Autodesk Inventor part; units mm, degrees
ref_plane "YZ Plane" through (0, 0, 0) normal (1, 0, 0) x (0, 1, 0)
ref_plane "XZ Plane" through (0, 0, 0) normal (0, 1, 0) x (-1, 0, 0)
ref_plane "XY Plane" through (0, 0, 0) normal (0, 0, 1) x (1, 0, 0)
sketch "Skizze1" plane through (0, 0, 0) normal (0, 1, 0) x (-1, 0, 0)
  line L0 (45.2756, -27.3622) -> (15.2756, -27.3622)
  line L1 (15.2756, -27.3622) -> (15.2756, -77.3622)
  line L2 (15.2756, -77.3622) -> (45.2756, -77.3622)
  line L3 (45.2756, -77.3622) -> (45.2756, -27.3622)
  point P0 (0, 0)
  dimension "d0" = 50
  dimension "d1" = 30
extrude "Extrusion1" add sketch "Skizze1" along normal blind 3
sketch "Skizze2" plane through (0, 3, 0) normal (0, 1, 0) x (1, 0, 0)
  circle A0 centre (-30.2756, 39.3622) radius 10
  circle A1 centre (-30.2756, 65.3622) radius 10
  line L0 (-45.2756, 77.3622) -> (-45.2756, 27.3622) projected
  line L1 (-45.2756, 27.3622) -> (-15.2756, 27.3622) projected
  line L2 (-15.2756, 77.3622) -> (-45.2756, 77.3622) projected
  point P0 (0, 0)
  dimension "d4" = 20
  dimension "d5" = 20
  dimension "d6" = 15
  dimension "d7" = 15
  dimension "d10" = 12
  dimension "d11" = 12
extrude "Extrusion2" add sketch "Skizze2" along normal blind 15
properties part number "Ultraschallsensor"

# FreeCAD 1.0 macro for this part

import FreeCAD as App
import Part
import Sketcher
from FreeCAD import Vector


def add_polygon(sketch, points):
    """Adds a closed chain of lines whose ends are joined by coincident constraints."""
    first, n = sketch.GeometryCount, len(points)
    for a, b in zip(points, points[1:] + points[:1]):
        sketch.addGeometry(Part.LineSegment(App.Vector(*a, 0), App.Vector(*b, 0)), False)
    for i in range(n):
        sketch.addConstraint(Sketcher.Constraint("Coincident", first + i, 2, first + (i + 1) % n, 1))

doc = App.newDocument("Part")
body = doc.addObject("PartDesign::Body", "Body")

# Sketch on XZ plane
sketch1 = body.newObject("Sketcher::SketchObject", "Sketch")
sketch1.AttachmentSupport = (doc.getObject("XZ_Plane"), [""])
sketch1.MapMode = "FlatFace"
add_polygon(sketch1, [(-45, -77), (-45, -27), (-15, -27), (-15, -77)])  # lines 0-3
sketch1.addConstraint(Sketcher.Constraint("Vertical", 0))
sketch1.addConstraint(Sketcher.Constraint("Horizontal", 1))
sketch1.addConstraint(Sketcher.Constraint("Vertical", 2))
sketch1.addConstraint(Sketcher.Constraint("Horizontal", 3))
sketch1.addConstraint(Sketcher.Constraint("DistanceX", 1, 1, 1, 2, 30.0))
sketch1.addConstraint(Sketcher.Constraint("DistanceY", 0, 1, 0, 2, 50.0))
sketch1.addConstraint(Sketcher.Constraint("DistanceX", 0, 2, -1, 1, 45.2756))
sketch1.addConstraint(Sketcher.Constraint("DistanceY", 0, 2, -1, 1, 27.3622))
pad1 = body.newObject("PartDesign::Pad", "Pad")
pad1.Profile = sketch1
pad1.Length = 3
pad1.Reversed = True

# Sketch on XZ plane
sketch2 = body.newObject("Sketcher::SketchObject", "Sketch001")
sketch2.AttachmentSupport = (doc.getObject("XZ_Plane"), [""])
sketch2.MapMode = "FlatFace"
sketch2.AttachmentOffset = App.Placement(Vector(0, 0, -3), App.Rotation())
sketch2.addGeometry(Part.Circle(Vector(-30, -39, 0), Vector(0, 0, 1), 10), False)
sketch2.addGeometry(Part.Circle(Vector(-30, -65, 0), Vector(0, 0, 1), 10), False)
sketch2.addConstraint(Sketcher.Constraint("Equal", 0, 1))
sketch2.addConstraint(Sketcher.Constraint("Vertical", 0, 3, 1, 3))
sketch2.addConstraint(Sketcher.Constraint("Diameter", 0, 20.0))
sketch2.addConstraint(Sketcher.Constraint("DistanceY", 1, 3, 0, 3, 26.0))
sketch2.addConstraint(Sketcher.Constraint("DistanceX", 0, 3, -1, 1, 30.2756))
sketch2.addConstraint(Sketcher.Constraint("DistanceY", 0, 3, -1, 1, 39.3622))
pad2 = body.newObject("PartDesign::Pad", "Pad001")
pad2.Profile = sketch2
pad2.Length = 15
pad2.Reversed = True

doc.recompute()
